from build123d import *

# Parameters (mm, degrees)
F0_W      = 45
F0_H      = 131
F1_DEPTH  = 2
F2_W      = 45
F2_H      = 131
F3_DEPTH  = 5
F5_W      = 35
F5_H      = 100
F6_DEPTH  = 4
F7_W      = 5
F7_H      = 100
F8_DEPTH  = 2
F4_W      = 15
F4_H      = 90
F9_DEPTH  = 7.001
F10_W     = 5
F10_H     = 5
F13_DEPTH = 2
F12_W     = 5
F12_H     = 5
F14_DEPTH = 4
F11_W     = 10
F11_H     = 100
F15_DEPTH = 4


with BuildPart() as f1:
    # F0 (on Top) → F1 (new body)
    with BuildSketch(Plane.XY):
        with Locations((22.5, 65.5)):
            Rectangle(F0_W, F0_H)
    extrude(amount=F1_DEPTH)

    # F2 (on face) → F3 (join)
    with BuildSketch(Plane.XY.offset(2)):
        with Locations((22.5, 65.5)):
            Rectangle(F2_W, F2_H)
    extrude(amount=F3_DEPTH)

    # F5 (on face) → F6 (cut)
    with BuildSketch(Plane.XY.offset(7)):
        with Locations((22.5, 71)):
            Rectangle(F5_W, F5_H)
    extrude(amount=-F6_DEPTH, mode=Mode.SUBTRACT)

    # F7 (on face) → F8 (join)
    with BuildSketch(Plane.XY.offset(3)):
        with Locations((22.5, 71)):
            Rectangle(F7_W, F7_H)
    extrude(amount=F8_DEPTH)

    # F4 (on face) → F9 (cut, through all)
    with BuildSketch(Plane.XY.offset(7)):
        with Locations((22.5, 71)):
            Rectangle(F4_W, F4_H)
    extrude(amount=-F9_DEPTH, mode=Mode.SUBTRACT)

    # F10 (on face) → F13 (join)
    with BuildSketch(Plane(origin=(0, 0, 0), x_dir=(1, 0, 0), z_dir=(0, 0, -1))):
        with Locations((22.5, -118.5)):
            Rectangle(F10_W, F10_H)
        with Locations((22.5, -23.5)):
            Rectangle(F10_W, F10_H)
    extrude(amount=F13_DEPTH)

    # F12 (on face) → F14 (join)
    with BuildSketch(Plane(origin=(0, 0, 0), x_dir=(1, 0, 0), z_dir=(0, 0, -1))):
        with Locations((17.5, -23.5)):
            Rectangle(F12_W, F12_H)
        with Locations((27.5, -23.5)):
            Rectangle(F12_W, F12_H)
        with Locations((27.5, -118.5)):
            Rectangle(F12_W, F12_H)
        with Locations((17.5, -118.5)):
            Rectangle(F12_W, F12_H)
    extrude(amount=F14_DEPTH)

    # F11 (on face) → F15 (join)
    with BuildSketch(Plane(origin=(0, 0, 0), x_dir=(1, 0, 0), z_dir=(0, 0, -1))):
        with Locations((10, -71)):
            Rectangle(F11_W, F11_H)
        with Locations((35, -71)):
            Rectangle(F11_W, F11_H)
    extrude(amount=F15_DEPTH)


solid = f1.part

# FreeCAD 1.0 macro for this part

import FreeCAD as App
import Part
import Sketcher
Q = App.Units.Quantity

doc = App.newDocument("Part")
body = doc.addObject("PartDesign::Body", "Body")

# Sketch on XY plane
sketch1 = doc.addObject("Sketcher::SketchObject", "Sketch")
body.addObject(sketch1)
sketch1.AttachmentSupport = (doc.XY_Plane, [""])
sketch1.MapMode = "FlatFace"
sketch1.addGeometry([
    Part.LineSegment(App.Vector(0, 131, 0), App.Vector(0, 0, 0)),
    Part.LineSegment(App.Vector(0, 0, 0), App.Vector(45, 0, 0)),
    Part.LineSegment(App.Vector(45, 0, 0), App.Vector(45, 131, 0)),
    Part.LineSegment(App.Vector(45, 131, 0), App.Vector(0, 131, 0)),
], False)
sketch1.addConstraint([
    Sketcher.Constraint("Coincident", 0, 2, 1, 1),
    Sketcher.Constraint("Coincident", 1, 2, 2, 1),
    Sketcher.Constraint("Coincident", 2, 2, 3, 1),
    Sketcher.Constraint("Coincident", 3, 2, 0, 1),
    Sketcher.Constraint("Vertical", 0),
    Sketcher.Constraint("Horizontal", 1),
    Sketcher.Constraint("Vertical", 2),
    Sketcher.Constraint("Horizontal", 3),
    Sketcher.Constraint("Coincident", 0, 2, -1, 1),
    Sketcher.Constraint("DistanceX", 1, 1, 1, 2, Q("45 mm")),
    Sketcher.Constraint("DistanceY", 0, 2, 0, 1, Q("131 mm")),
])
pad1 = doc.addObject("PartDesign::Pad", "Pad")
body.addObject(pad1)
pad1.Profile = sketch1
pad1.Length = 2

# Sketch on XY plane
sketch2 = doc.addObject("Sketcher::SketchObject", "Sketch001")
body.addObject(sketch2)
sketch2.AttachmentSupport = (doc.XY_Plane, [""])
sketch2.MapMode = "FlatFace"
sketch2.AttachmentOffset = App.Placement(App.Vector(0, 0, 2), App.Rotation())
sketch2.addGeometry([
    Part.LineSegment(App.Vector(0, 131, 0), App.Vector(0, 0, 0)),
    Part.LineSegment(App.Vector(0, 0, 0), App.Vector(45, 0, 0)),
    Part.LineSegment(App.Vector(45, 0, 0), App.Vector(45, 131, 0)),
    Part.LineSegment(App.Vector(45, 131, 0), App.Vector(0, 131, 0)),
], False)
sketch2.addConstraint([
    Sketcher.Constraint("Coincident", 0, 2, 1, 1),
    Sketcher.Constraint("Coincident", 1, 2, 2, 1),
    Sketcher.Constraint("Coincident", 2, 2, 3, 1),
    Sketcher.Constraint("Coincident", 3, 2, 0, 1),
    Sketcher.Constraint("Vertical", 0),
    Sketcher.Constraint("Horizontal", 1),
    Sketcher.Constraint("Vertical", 2),
    Sketcher.Constraint("Horizontal", 3),
    Sketcher.Constraint("Coincident", 0, 2, -1, 1),
    Sketcher.Constraint("DistanceX", 1, 1, 1, 2, Q("45 mm")),
    Sketcher.Constraint("DistanceY", 0, 2, 0, 1, Q("131 mm")),
])
pad2 = doc.addObject("PartDesign::Pad", "Pad001")
body.addObject(pad2)
pad2.Profile = sketch2
pad2.Length = 5

# Sketch on XY plane
sketch3 = doc.addObject("Sketcher::SketchObject", "Sketch002")
body.addObject(sketch3)
sketch3.AttachmentSupport = (doc.XY_Plane, [""])
sketch3.MapMode = "FlatFace"
sketch3.AttachmentOffset = App.Placement(App.Vector(0, 0, 7), App.Rotation())
sketch3.addGeometry([
    Part.LineSegment(App.Vector(5, 121, 0), App.Vector(5, 21, 0)),
    Part.LineSegment(App.Vector(5, 21, 0), App.Vector(40, 21, 0)),
    Part.LineSegment(App.Vector(40, 21, 0), App.Vector(40, 121, 0)),
    Part.LineSegment(App.Vector(40, 121, 0), App.Vector(5, 121, 0)),
], False)
sketch3.addConstraint([
    Sketcher.Constraint("Coincident", 0, 2, 1, 1),
    Sketcher.Constraint("Coincident", 1, 2, 2, 1),
    Sketcher.Constraint("Coincident", 2, 2, 3, 1),
    Sketcher.Constraint("Coincident", 3, 2, 0, 1),
    Sketcher.Constraint("Vertical", 0),
    Sketcher.Constraint("Horizontal", 1),
    Sketcher.Constraint("Vertical", 2),
    Sketcher.Constraint("Horizontal", 3),
    Sketcher.Constraint("DistanceX", 1, 1, 1, 2, Q("35 mm")),
    Sketcher.Constraint("DistanceY", 0, 2, 0, 1, Q("100 mm")),
    Sketcher.Constraint("DistanceX", -1, 1, 0, 2, Q("5 mm")),
    Sketcher.Constraint("DistanceY", -1, 1, 0, 2, Q("21 mm")),
])
pocket1 = doc.addObject("PartDesign::Pocket", "Pocket")
body.addObject(pocket1)
pocket1.Profile = sketch3
pocket1.Length = 4

# Sketch on XY plane
sketch4 = doc.addObject("Sketcher::SketchObject", "Sketch003")
body.addObject(sketch4)
sketch4.AttachmentSupport = (doc.XY_Plane, [""])
sketch4.MapMode = "FlatFace"
sketch4.AttachmentOffset = App.Placement(App.Vector(0, 0, 3), App.Rotation())
sketch4.addGeometry([
    Part.LineSegment(App.Vector(20, 121, 0), App.Vector(20, 21, 0)),
    Part.LineSegment(App.Vector(20, 21, 0), App.Vector(25, 21, 0)),
    Part.LineSegment(App.Vector(25, 21, 0), App.Vector(25, 121, 0)),
    Part.LineSegment(App.Vector(25, 121, 0), App.Vector(20, 121, 0)),
], False)
sketch4.addConstraint([
    Sketcher.Constraint("Coincident", 0, 2, 1, 1),
    Sketcher.Constraint("Coincident", 1, 2, 2, 1),
    Sketcher.Constraint("Coincident", 2, 2, 3, 1),
    Sketcher.Constraint("Coincident", 3, 2, 0, 1),
    Sketcher.Constraint("Vertical", 0),
    Sketcher.Constraint("Horizontal", 1),
    Sketcher.Constraint("Vertical", 2),
    Sketcher.Constraint("Horizontal", 3),
    Sketcher.Constraint("DistanceX", 1, 1, 1, 2, Q("5 mm")),
    Sketcher.Constraint("DistanceY", 0, 2, 0, 1, Q("100 mm")),
    Sketcher.Constraint("DistanceX", -1, 1, 0, 2, Q("20 mm")),
    Sketcher.Constraint("DistanceY", -1, 1, 0, 2, Q("21 mm")),
])
pad3 = doc.addObject("PartDesign::Pad", "Pad002")
body.addObject(pad3)
pad3.Profile = sketch4
pad3.Length = 2

# Sketch on XY plane
sketch5 = doc.addObject("Sketcher::SketchObject", "Sketch004")
body.addObject(sketch5)
sketch5.AttachmentSupport = (doc.XY_Plane, [""])
sketch5.MapMode = "FlatFace"
sketch5.AttachmentOffset = App.Placement(App.Vector(0, 0, 7), App.Rotation())
sketch5.addGeometry([
    Part.LineSegment(App.Vector(15, 116, 0), App.Vector(15, 26, 0)),
    Part.LineSegment(App.Vector(15, 26, 0), App.Vector(30, 26, 0)),
    Part.LineSegment(App.Vector(30, 26, 0), App.Vector(30, 116, 0)),
    Part.LineSegment(App.Vector(30, 116, 0), App.Vector(15, 116, 0)),
], False)
sketch5.addConstraint([
    Sketcher.Constraint("Coincident", 0, 2, 1, 1),
    Sketcher.Constraint("Coincident", 1, 2, 2, 1),
    Sketcher.Constraint("Coincident", 2, 2, 3, 1),
    Sketcher.Constraint("Coincident", 3, 2, 0, 1),
    Sketcher.Constraint("Vertical", 0),
    Sketcher.Constraint("Horizontal", 1),
    Sketcher.Constraint("Vertical", 2),
    Sketcher.Constraint("Horizontal", 3),
    Sketcher.Constraint("DistanceX", 1, 1, 1, 2, Q("15 mm")),
    Sketcher.Constraint("DistanceY", 0, 2, 0, 1, Q("90 mm")),
    Sketcher.Constraint("DistanceX", -1, 1, 0, 2, Q("15 mm")),
    Sketcher.Constraint("DistanceY", -1, 1, 0, 2, Q("26 mm")),
])
pocket2 = doc.addObject("PartDesign::Pocket", "Pocket001")
body.addObject(pocket2)
pocket2.Profile = sketch5
pocket2.Type = "ThroughAll"

# Sketch on XY plane
sketch6 = doc.addObject("Sketcher::SketchObject", "Sketch005")
body.addObject(sketch6)
sketch6.AttachmentSupport = (doc.XY_Plane, [""])
sketch6.MapMode = "FlatFace"
sketch6.addGeometry([
    Part.LineSegment(App.Vector(20, 116, 0), App.Vector(20, 121, 0)),  # 0
    Part.LineSegment(App.Vector(20, 121, 0), App.Vector(25, 121, 0)),  # 1
    Part.LineSegment(App.Vector(25, 121, 0), App.Vector(25, 116, 0)),  # 2
    Part.LineSegment(App.Vector(25, 116, 0), App.Vector(20, 116, 0)),  # 3
    Part.LineSegment(App.Vector(20, 21, 0), App.Vector(20, 26, 0)),  # 4
    Part.LineSegment(App.Vector(20, 26, 0), App.Vector(25, 26, 0)),  # 5
    Part.LineSegment(App.Vector(25, 26, 0), App.Vector(25, 21, 0)),  # 6
    Part.LineSegment(App.Vector(25, 21, 0), App.Vector(20, 21, 0)),  # 7
], False)
sketch6.addConstraint([
    Sketcher.Constraint("Coincident", 0, 2, 1, 1),
    Sketcher.Constraint("Coincident", 1, 2, 2, 1),
    Sketcher.Constraint("Coincident", 2, 2, 3, 1),
    Sketcher.Constraint("Coincident", 3, 2, 0, 1),
    Sketcher.Constraint("Coincident", 4, 2, 5, 1),
    Sketcher.Constraint("Coincident", 5, 2, 6, 1),
    Sketcher.Constraint("Coincident", 6, 2, 7, 1),
    Sketcher.Constraint("Coincident", 7, 2, 4, 1),
    Sketcher.Constraint("Vertical", 0),
    Sketcher.Constraint("Horizontal", 1),
    Sketcher.Constraint("Vertical", 2),
    Sketcher.Constraint("Horizontal", 3),
    Sketcher.Constraint("Vertical", 4),
    Sketcher.Constraint("Horizontal", 5),
    Sketcher.Constraint("Vertical", 6),
    Sketcher.Constraint("Horizontal", 7),
    Sketcher.Constraint("Vertical", 3, 2, 4, 2),
    Sketcher.Constraint("Vertical", 2, 2, 5, 2),
    Sketcher.Constraint("Equal", 7, 0),
    Sketcher.Constraint("Equal", 2, 4),
    Sketcher.Constraint("DistanceX", 1, 1, 1, 2, Q("5 mm")),
    Sketcher.Constraint("DistanceX", -1, 1, 0, 2, Q("20 mm")),
    Sketcher.Constraint("DistanceY", -1, 1, 0, 2, Q("121 mm")),
    Sketcher.Constraint("DistanceY", -1, 1, 4, 2, Q("26 mm")),
])
pad4 = doc.addObject("PartDesign::Pad", "Pad003")
body.addObject(pad4)
pad4.Profile = sketch6
pad4.Length = 2
pad4.Reversed = True

# Sketch on XY plane
sketch7 = doc.addObject("Sketcher::SketchObject", "Sketch006")
body.addObject(sketch7)
sketch7.AttachmentSupport = (doc.XY_Plane, [""])
sketch7.MapMode = "FlatFace"
sketch7.addGeometry([
    Part.LineSegment(App.Vector(15, 21, 0), App.Vector(15, 26, 0)),  # 0
    Part.LineSegment(App.Vector(15, 26, 0), App.Vector(20, 26, 0)),  # 1
    Part.LineSegment(App.Vector(20, 26, 0), App.Vector(20, 21, 0)),  # 2
    Part.LineSegment(App.Vector(20, 21, 0), App.Vector(15, 21, 0)),  # 3
    Part.LineSegment(App.Vector(25, 21, 0), App.Vector(25, 26, 0)),  # 4
    Part.LineSegment(App.Vector(25, 26, 0), App.Vector(30, 26, 0)),  # 5
    Part.LineSegment(App.Vector(30, 26, 0), App.Vector(30, 21, 0)),  # 6
    Part.LineSegment(App.Vector(30, 21, 0), App.Vector(25, 21, 0)),  # 7
    Part.LineSegment(App.Vector(25, 116, 0), App.Vector(25, 121, 0)),  # 8
    Part.LineSegment(App.Vector(25, 121, 0), App.Vector(30, 121, 0)),  # 9
    Part.LineSegment(App.Vector(30, 121, 0), App.Vector(30, 116, 0)),  # 10
    Part.LineSegment(App.Vector(30, 116, 0), App.Vector(25, 116, 0)),  # 11
    Part.LineSegment(App.Vector(15, 116, 0), App.Vector(15, 121, 0)),  # 12
    Part.LineSegment(App.Vector(15, 121, 0), App.Vector(20, 121, 0)),  # 13
    Part.LineSegment(App.Vector(20, 121, 0), App.Vector(20, 116, 0)),  # 14
    Part.LineSegment(App.Vector(20, 116, 0), App.Vector(15, 116, 0)),  # 15
], False)
sketch7.addConstraint([
    Sketcher.Constraint("Coincident", 0, 2, 1, 1),
    Sketcher.Constraint("Coincident", 1, 2, 2, 1),
    Sketcher.Constraint("Coincident", 2, 2, 3, 1),
    Sketcher.Constraint("Coincident", 3, 2, 0, 1),
    Sketcher.Constraint("Coincident", 4, 2, 5, 1),
    Sketcher.Constraint("Coincident", 5, 2, 6, 1),
    Sketcher.Constraint("Coincident", 6, 2, 7, 1),
    Sketcher.Constraint("Coincident", 7, 2, 4, 1),
    Sketcher.Constraint("Coincident", 8, 2, 9, 1),
    Sketcher.Constraint("Coincident", 9, 2, 10, 1),
    Sketcher.Constraint("Coincident", 10, 2, 11, 1),
    Sketcher.Constraint("Coincident", 11, 2, 8, 1),
    Sketcher.Constraint("Coincident", 12, 2, 13, 1),
    Sketcher.Constraint("Coincident", 13, 2, 14, 1),
    Sketcher.Constraint("Coincident", 14, 2, 15, 1),
    Sketcher.Constraint("Coincident", 15, 2, 12, 1),
    Sketcher.Constraint("Vertical", 0),
    Sketcher.Constraint("Horizontal", 1),
    Sketcher.Constraint("Vertical", 2),
    Sketcher.Constraint("Horizontal", 3),
    Sketcher.Constraint("Vertical", 4),
    Sketcher.Constraint("Horizontal", 5),
    Sketcher.Constraint("Vertical", 6),
    Sketcher.Constraint("Horizontal", 7),
    Sketcher.Constraint("Vertical", 8),
    Sketcher.Constraint("Horizontal", 9),
    Sketcher.Constraint("Vertical", 10),
    Sketcher.Constraint("Horizontal", 11),
    Sketcher.Constraint("Vertical", 12),
    Sketcher.Constraint("Horizontal", 13),
    Sketcher.Constraint("Vertical", 14),
    Sketcher.Constraint("Horizontal", 15),
    Sketcher.Constraint("Horizontal", 1, 2, 4, 2),
    Sketcher.Constraint("Horizontal", 3, 2, 6, 2),
    Sketcher.Constraint("Horizontal", 9, 2, 12, 2),
    Sketcher.Constraint("Horizontal", 11, 2, 14, 2),
    Sketcher.Constraint("Vertical", 7, 2, 8, 2),
    Sketcher.Constraint("Vertical", 6, 2, 9, 2),
    Sketcher.Constraint("Vertical", 3, 2, 12, 2),
    Sketcher.Constraint("Vertical", 2, 2, 13, 2),
    Sketcher.Constraint("Equal", 3, 5),
    Sketcher.Constraint("Equal", 15, 0),
    Sketcher.Constraint("Equal", 6, 8),
    Sketcher.Constraint("DistanceX", 1, 1, 1, 2, Q("5 mm")),
    Sketcher.Constraint("DistanceX", -1, 1, 0, 2, Q("15 mm")),
    Sketcher.Constraint("DistanceY", -1, 1, 0, 2, Q("26 mm")),
    Sketcher.Constraint("DistanceX", -1, 1, 4, 2, Q("25 mm")),
    Sketcher.Constraint("DistanceY", -1, 1, 8, 2, Q("121 mm")),
])
pad5 = doc.addObject("PartDesign::Pad", "Pad004")
body.addObject(pad5)
pad5.Profile = sketch7
pad5.Length = 4
pad5.Reversed = True

# Sketch on XY plane
sketch8 = doc.addObject("Sketcher::SketchObject", "Sketch007")
body.addObject(sketch8)
sketch8.AttachmentSupport = (doc.XY_Plane, [""])
sketch8.MapMode = "FlatFace"
sketch8.addGeometry([
    Part.LineSegment(App.Vector(5, 21, 0), App.Vector(5, 121, 0)),  # 0
    Part.LineSegment(App.Vector(5, 121, 0), App.Vector(15, 121, 0)),  # 1
    Part.LineSegment(App.Vector(15, 121, 0), App.Vector(15, 21, 0)),  # 2
    Part.LineSegment(App.Vector(15, 21, 0), App.Vector(5, 21, 0)),  # 3
    Part.LineSegment(App.Vector(30, 21, 0), App.Vector(30, 121, 0)),  # 4
    Part.LineSegment(App.Vector(30, 121, 0), App.Vector(40, 121, 0)),  # 5
    Part.LineSegment(App.Vector(40, 121, 0), App.Vector(40, 21, 0)),  # 6
    Part.LineSegment(App.Vector(40, 21, 0), App.Vector(30, 21, 0)),  # 7
], False)
sketch8.addConstraint([
    Sketcher.Constraint("Coincident", 0, 2, 1, 1),
    Sketcher.Constraint("Coincident", 1, 2, 2, 1),
    Sketcher.Constraint("Coincident", 2, 2, 3, 1),
    Sketcher.Constraint("Coincident", 3, 2, 0, 1),
    Sketcher.Constraint("Coincident", 4, 2, 5, 1),
    Sketcher.Constraint("Coincident", 5, 2, 6, 1),
    Sketcher.Constraint("Coincident", 6, 2, 7, 1),
    Sketcher.Constraint("Coincident", 7, 2, 4, 1),
    Sketcher.Constraint("Vertical", 0),
    Sketcher.Constraint("Horizontal", 1),
    Sketcher.Constraint("Vertical", 2),
    Sketcher.Constraint("Horizontal", 3),
    Sketcher.Constraint("Vertical", 4),
    Sketcher.Constraint("Horizontal", 5),
    Sketcher.Constraint("Vertical", 6),
    Sketcher.Constraint("Horizontal", 7),
    Sketcher.Constraint("Horizontal", 1, 2, 4, 2),
    Sketcher.Constraint("Horizontal", 3, 2, 6, 2),
    Sketcher.Constraint("Equal", 3, 5),
    Sketcher.Constraint("DistanceX", 1, 1, 1, 2, Q("10 mm")),
    Sketcher.Constraint("DistanceY", 0, 1, 0, 2, Q("100 mm")),
    Sketcher.Constraint("DistanceX", -1, 1, 0, 2, Q("5 mm")),
    Sketcher.Constraint("DistanceY", -1, 1, 0, 2, Q("121 mm")),
    Sketcher.Constraint("DistanceX", -1, 1, 4, 2, Q("30 mm")),
])
pad6 = doc.addObject("PartDesign::Pad", "Pad005")
body.addObject(pad6)
pad6.Profile = sketch8
pad6.Length = 4
pad6.Reversed = True

doc.recompute()
